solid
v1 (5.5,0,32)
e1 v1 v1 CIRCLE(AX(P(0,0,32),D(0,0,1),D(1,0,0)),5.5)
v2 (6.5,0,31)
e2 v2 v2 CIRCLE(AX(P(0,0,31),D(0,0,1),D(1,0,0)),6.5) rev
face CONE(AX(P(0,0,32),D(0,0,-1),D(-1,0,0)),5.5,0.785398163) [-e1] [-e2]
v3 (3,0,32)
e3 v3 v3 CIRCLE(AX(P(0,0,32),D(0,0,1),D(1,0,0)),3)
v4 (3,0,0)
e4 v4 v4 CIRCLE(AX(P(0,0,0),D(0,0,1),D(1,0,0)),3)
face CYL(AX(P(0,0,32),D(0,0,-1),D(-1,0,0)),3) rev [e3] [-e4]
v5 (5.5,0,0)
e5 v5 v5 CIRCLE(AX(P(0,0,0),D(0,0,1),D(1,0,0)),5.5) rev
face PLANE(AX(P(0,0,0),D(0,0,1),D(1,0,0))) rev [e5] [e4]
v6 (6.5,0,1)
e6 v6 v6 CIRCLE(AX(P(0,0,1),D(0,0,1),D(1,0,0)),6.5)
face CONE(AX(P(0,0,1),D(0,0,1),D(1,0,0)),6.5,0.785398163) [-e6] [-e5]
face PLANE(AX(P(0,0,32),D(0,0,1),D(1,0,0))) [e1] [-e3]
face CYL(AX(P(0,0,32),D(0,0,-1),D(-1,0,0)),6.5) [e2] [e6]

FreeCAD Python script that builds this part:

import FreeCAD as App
import Part
import Sketcher


def edges_at(feature, points):
    """Names of the edges that pass closest to the given points."""
    edges = feature.Shape.Edges
    near = lambda p: min(range(len(edges)), key=lambda i: edges[i].distToShape(Part.Vertex(*p))[0])
    return sorted({f"Edge{near(p) + 1}" for p in points})

doc = App.newDocument("Part")
body = doc.addObject("PartDesign::Body", "Body")

# Sketch on XY plane
sketch1 = body.newObject("Sketcher::SketchObject", "Sketch")
sketch1.AttachmentSupport = (doc.getObject("XY_Plane"), [""])
sketch1.MapMode = "FlatFace"
sketch1.addGeometry([
    Part.Circle(App.Vector(0, 0, 0), App.Vector(0, 0, 1), 6.5),
    Part.Circle(App.Vector(0, 0, 0), App.Vector(0, 0, 1), 3),
], False)
sketch1.addConstraint([
    Sketcher.Constraint("Coincident", 0, 3, -1, 1),
    Sketcher.Constraint("Coincident", 1, 3, -1, 1),
    Sketcher.Constraint("Diameter", 0, 13.0),
    Sketcher.Constraint("Diameter", 1, 6.0),
])
pad1 = body.newObject("PartDesign::Pad", "Pad")
pad1.Profile = sketch1
pad1.Length = 32
doc.recompute()

chamfer = body.newObject("PartDesign::Chamfer", "Chamfer")
chamfer.Base = (pad1, edges_at(pad1, [(-6.5, 0, 0), (-6.5, 0, 32)]))
chamfer.Size = 1

doc.recompute()
